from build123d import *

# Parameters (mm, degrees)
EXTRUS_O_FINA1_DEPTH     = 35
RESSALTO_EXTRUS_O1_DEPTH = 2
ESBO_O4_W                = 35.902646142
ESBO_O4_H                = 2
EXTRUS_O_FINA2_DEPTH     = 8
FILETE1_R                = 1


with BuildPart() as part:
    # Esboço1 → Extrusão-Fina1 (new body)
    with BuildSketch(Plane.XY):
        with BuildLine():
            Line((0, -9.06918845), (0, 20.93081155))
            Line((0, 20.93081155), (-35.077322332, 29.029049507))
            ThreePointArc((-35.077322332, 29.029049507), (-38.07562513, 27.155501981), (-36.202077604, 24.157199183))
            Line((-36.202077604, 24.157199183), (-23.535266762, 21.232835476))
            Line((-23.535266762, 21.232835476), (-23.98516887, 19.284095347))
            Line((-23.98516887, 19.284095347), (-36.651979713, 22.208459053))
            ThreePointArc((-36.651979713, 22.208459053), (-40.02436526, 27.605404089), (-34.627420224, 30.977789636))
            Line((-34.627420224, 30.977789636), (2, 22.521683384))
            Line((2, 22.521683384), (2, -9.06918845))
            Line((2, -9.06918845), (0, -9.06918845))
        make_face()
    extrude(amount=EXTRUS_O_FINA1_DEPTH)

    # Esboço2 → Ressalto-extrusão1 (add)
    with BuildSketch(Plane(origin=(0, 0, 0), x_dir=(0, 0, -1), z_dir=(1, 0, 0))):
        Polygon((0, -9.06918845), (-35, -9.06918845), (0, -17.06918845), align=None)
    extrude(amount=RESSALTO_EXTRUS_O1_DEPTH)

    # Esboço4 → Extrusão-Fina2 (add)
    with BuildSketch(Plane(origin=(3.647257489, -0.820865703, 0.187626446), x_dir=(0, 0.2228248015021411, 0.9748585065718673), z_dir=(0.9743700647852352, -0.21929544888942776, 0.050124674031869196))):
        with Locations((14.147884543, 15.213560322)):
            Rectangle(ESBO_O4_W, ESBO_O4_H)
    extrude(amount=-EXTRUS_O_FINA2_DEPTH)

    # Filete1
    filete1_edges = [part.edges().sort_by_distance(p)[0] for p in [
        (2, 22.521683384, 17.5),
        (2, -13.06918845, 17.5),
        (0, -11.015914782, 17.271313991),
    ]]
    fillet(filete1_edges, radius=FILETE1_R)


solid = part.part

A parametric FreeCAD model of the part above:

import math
import FreeCAD as App
import Part
import Sketcher

V = App.Vector
Q = App.Units.Quantity


def edges_at(feature, points):
    """Names of the edges that pass closest to the given points."""
    edges = feature.Shape.Edges
    near = lambda p: min(range(len(edges)), key=lambda i: edges[i].distToShape(Part.Vertex(*p))[0])
    return sorted({f"Edge{near(p) + 1}" for p in points})


def add_polygon(sketch, points):
    """Adds a closed chain of lines whose ends are joined by coincident constraints."""
    first, n = sketch.GeometryCount, len(points)
    for a, b in zip(points, points[1:] + points[:1]):
        sketch.addGeometry(Part.LineSegment(App.Vector(*a, 0), App.Vector(*b, 0)), False)
    for i in range(n):
        sketch.addConstraint(Sketcher.Constraint("Coincident", first + i, 2, first + (i + 1) % n, 1))

doc = App.newDocument("Part")
body = doc.addObject("PartDesign::Body", "Body")

# Sketch on XY plane
sketch1 = body.newObject("Sketcher::SketchObject", "Sketch")
sketch1.AttachmentSupport = (doc.getObject("XY_Plane"), [""])
sketch1.MapMode = "FlatFace"
sketch1.addGeometry(Part.LineSegment(V(0, 20.930812, 0), V(0, -9.069188, 0)), False)
sketch1.addGeometry(Part.LineSegment(V(0, -9.069188, 0), V(2, -9.069188, 0)), False)
sketch1.addGeometry(Part.LineSegment(V(2, -9.069188, 0), V(2, 22.521683, 0)), False)
sketch1.addGeometry(Part.LineSegment(V(2, 22.521683, 0), V(-34.62742, 30.97779, 0)), False)
sketch1.addGeometry(Part.ArcOfCircle(Part.Circle(V(-35.6397, 26.593124, 0), V(0, 0, 1), 4.5), math.radians(77), math.radians(257)), False)
sketch1.addGeometry(Part.LineSegment(V(-36.65198, 22.208459, 0), V(-23.985169, 19.284095, 0)), False)
sketch1.addGeometry(Part.LineSegment(V(-23.985169, 19.284095, 0), V(-23.535267, 21.232835, 0)), False)
sketch1.addGeometry(Part.LineSegment(V(-23.535267, 21.232835, 0), V(-36.202078, 24.157199, 0)), False)
sketch1.addGeometry(Part.ArcOfCircle(Part.Circle(V(-35.6397, 26.593124, 0), V(0, 0, 1), 2.5), math.radians(77), math.radians(257)), False)
sketch1.addGeometry(Part.LineSegment(V(-35.077322, 29.02905, 0), V(0, 20.930812, 0)), False)
sketch1.addConstraint(Sketcher.Constraint("Coincident", 0, 2, 1, 1))
sketch1.addConstraint(Sketcher.Constraint("Coincident", 1, 2, 2, 1))
sketch1.addConstraint(Sketcher.Constraint("Coincident", 2, 2, 3, 1))
sketch1.addConstraint(Sketcher.Constraint("Tangent", 3, 2, 4, 1))
sketch1.addConstraint(Sketcher.Constraint("Tangent", 4, 2, 5, 1))
sketch1.addConstraint(Sketcher.Constraint("Coincident", 5, 2, 6, 1))
sketch1.addConstraint(Sketcher.Constraint("Coincident", 6, 2, 7, 1))
sketch1.addConstraint(Sketcher.Constraint("Tangent", 7, 2, 8, 2))
sketch1.addConstraint(Sketcher.Constraint("Tangent", 8, 1, 9, 1))
sketch1.addConstraint(Sketcher.Constraint("Coincident", 9, 2, 0, 1))
sketch1.addConstraint(Sketcher.Constraint("Vertical", 0))
sketch1.addConstraint(Sketcher.Constraint("Horizontal", 1))
sketch1.addConstraint(Sketcher.Constraint("Vertical", 2))
sketch1.addConstraint(Sketcher.Constraint("Coincident", 8, 3, 4, 3))
sketch1.addConstraint(Sketcher.Constraint("PointOnObject", 0, 2, -2))
sketch1.addConstraint(Sketcher.Constraint("Parallel", 3, 5))
sketch1.addConstraint(Sketcher.Constraint("Perpendicular", 5, 6))
sketch1.addConstraint(Sketcher.Constraint("Perpendicular", 6, 7))
sketch1.addConstraint(Sketcher.Constraint("Parallel", 7, 9))
sketch1.addConstraint(Sketcher.Constraint("Radius", 4, Q("4.5 mm")))
sketch1.addConstraint(Sketcher.Constraint("Radius", 8, Q("2.5 mm")))
sketch1.addConstraint(Sketcher.Constraint("DistanceX", 1, 1, 1, 2, Q("2 mm")))
sketch1.addConstraint(Sketcher.Constraint("DistanceY", 0, 2, 0, 1, Q("30 mm")))
sketch1.addConstraint(Sketcher.Constraint("Angle", 3, Q("167 deg")))
sketch1.addConstraint(Sketcher.Constraint("Distance", 5, Q("13 mm")))
sketch1.addConstraint(Sketcher.Constraint("Distance", 9, Q("36 mm")))
sketch1.addConstraint(Sketcher.Constraint("DistanceY", -1, 1, 7, 2, Q("24.157199 mm")))
pad1 = body.newObject("PartDesign::Pad", "Pad")
pad1.Profile = sketch1
pad1.Length = 35

# Sketch on YZ plane
sketch2 = body.newObject("Sketcher::SketchObject", "Sketch001")
sketch2.AttachmentSupport = (doc.getObject("YZ_Plane"), [""])
sketch2.MapMode = "FlatFace"
add_polygon(sketch2, [(-9.069188, 0), (-9.069188, 35), (-17.069188, 0)])  # lines 0-2
sketch2.addConstraint(Sketcher.Constraint("Vertical", 0))
sketch2.addConstraint(Sketcher.Constraint("Horizontal", 2))
sketch2.addConstraint(Sketcher.Constraint("PointOnObject", 1, 2, -1))
sketch2.addConstraint(Sketcher.Constraint("DistanceX", 2, 1, 2, 2, Q("8 mm")))
sketch2.addConstraint(Sketcher.Constraint("DistanceY", 0, 1, 0, 2, Q("35 mm")))
sketch2.addConstraint(Sketcher.Constraint("DistanceX", 0, 2, -1, 1, Q("9.069188 mm")))
pad2 = body.newObject("PartDesign::Pad", "Pad001")
pad2.Profile = sketch2
pad2.Length = 2

# Sketch on an angled plane
sketch3 = body.newObject("Sketcher::SketchObject", "Sketch002")
sketch3.Placement = App.Placement(V(3.647257, -0.820866, 0.187626), App.Rotation(V(0, 0.222824802, 0.974858507), V(-0.224951055, -0.949872947, 0.217113817), V(0.974370065, -0.219295449, 0.050124674), "ZXY"))
add_polygon(sketch3, [(-3.803439, 16.21356), (-3.803439, 14.21356), (32.099208, 14.21356), (32.099208, 16.21356)])  # lines 0-3
sketch3.addConstraint(Sketcher.Constraint("Vertical", 0))
sketch3.addConstraint(Sketcher.Constraint("Horizontal", 1))
sketch3.addConstraint(Sketcher.Constraint("Vertical", 2))
sketch3.addConstraint(Sketcher.Constraint("Horizontal", 3))
sketch3.addConstraint(Sketcher.Constraint("DistanceY", 0, 2, 0, 1, Q("2 mm")))
sketch3.addConstraint(Sketcher.Constraint("DistanceX", 1, 1, 1, 2, Q("35.902646 mm")))
sketch3.addConstraint(Sketcher.Constraint("DistanceX", 0, 2, -1, 1, Q("3.803439 mm")))
sketch3.addConstraint(Sketcher.Constraint("DistanceY", -1, 1, 0, 2, Q("14.21356 mm")))
pad3 = body.newObject("PartDesign::Pad", "Pad002")
pad3.Profile = sketch3
pad3.Length = 8
pad3.Reversed = True
doc.recompute()

fillet = body.newObject("PartDesign::Fillet", "Fillet")
fillet.Base = (pad3, edges_at(pad3, [(2, 22.522, 17.5), (2, -13.069, 17.5), (0, -11.016, 17.271)]))
fillet.Radius = 1

doc.recompute()
